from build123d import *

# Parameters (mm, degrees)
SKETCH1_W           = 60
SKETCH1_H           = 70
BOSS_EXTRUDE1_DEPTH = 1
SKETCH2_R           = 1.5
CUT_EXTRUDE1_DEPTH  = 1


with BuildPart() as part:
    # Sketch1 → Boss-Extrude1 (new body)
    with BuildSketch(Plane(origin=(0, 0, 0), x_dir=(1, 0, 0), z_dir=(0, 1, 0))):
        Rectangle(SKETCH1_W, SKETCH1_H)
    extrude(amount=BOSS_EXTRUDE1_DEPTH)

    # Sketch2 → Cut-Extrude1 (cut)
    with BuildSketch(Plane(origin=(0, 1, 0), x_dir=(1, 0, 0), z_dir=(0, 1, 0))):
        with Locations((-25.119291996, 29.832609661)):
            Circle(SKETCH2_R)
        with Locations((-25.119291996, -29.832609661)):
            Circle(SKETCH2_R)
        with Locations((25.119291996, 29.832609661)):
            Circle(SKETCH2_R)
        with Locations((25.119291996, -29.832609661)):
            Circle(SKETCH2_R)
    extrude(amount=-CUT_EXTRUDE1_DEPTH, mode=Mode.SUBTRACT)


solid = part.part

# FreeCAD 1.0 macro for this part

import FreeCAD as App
import Part
import Sketcher
from FreeCAD import Vector

doc = App.newDocument("Part")
body = doc.addObject("PartDesign::Body", "Body")

# Sketch on XZ plane
sketch1 = doc.addObject("Sketcher::SketchObject", "Sketch")
body.addObject(sketch1)
sketch1.AttachmentSupport = (doc.XZ_Plane, [""])
sketch1.MapMode = "FlatFace"
sketch1.addGeometry([
    Part.LineSegment(Vector(-30, -35, 0), Vector(-30, 35, 0)),
    Part.LineSegment(Vector(-30, 35, 0), Vector(30, 35, 0)),
    Part.LineSegment(Vector(30, 35, 0), Vector(30, -35, 0)),
    Part.LineSegment(Vector(30, -35, 0), Vector(-30, -35, 0)),
], False)
sketch1.addConstraint([
    Sketcher.Constraint("Coincident", 0, 2, 1, 1),
    Sketcher.Constraint("Coincident", 1, 2, 2, 1),
    Sketcher.Constraint("Coincident", 2, 2, 3, 1),
    Sketcher.Constraint("Coincident", 3, 2, 0, 1),
    Sketcher.Constraint("Vertical", 0),
    Sketcher.Constraint("Horizontal", 1),
    Sketcher.Constraint("Vertical", 2),
    Sketcher.Constraint("Horizontal", 3),
    Sketcher.Constraint("Symmetric", 0, 2, 2, 2, -1, 1),
    Sketcher.Constraint("DistanceX", 1, 1, 1, 2, 60.0),
    Sketcher.Constraint("DistanceY", 0, 1, 0, 2, 70.0),
])
pad1 = doc.addObject("PartDesign::Pad", "Pad")
body.addObject(pad1)
pad1.Profile = sketch1
pad1.Length = 1
pad1.Reversed = True

# Sketch on XZ plane
sketch2 = doc.addObject("Sketcher::SketchObject", "Sketch001")
body.addObject(sketch2)
sketch2.AttachmentSupport = (doc.XZ_Plane, [""])
sketch2.MapMode = "FlatFace"
sketch2.AttachmentOffset = App.Placement(Vector(0, 0, -1), App.Rotation())
sketch2.addGeometry([
    Part.Circle(Vector(-25.1, -29.8, 0), Vector(0, 0, 1), 1.5),
    Part.Circle(Vector(-25.1, 29.8, 0), Vector(0, 0, 1), 1.5),
    Part.Circle(Vector(25.1, -29.8, 0), Vector(0, 0, 1), 1.5),
    Part.Circle(Vector(25.1, 29.8, 0), Vector(0, 0, 1), 1.5),
], False)
sketch2.addConstraint([
    Sketcher.Constraint("Equal", 0, 1),
    Sketcher.Constraint("Equal", 1, 2),
    Sketcher.Constraint("Equal", 2, 3),
    Sketcher.Constraint("Symmetric", 1, 3, 2, 3, -1, 1),
    Sketcher.Constraint("Symmetric", 0, 3, 3, 3, -1, 1),
    Sketcher.Constraint("Symmetric", 0, 3, 2, 3, -2),
    Sketcher.Constraint("Diameter", 0, 3.0),
    Sketcher.Constraint("DistanceX", 0, 3, -1, 1, 25.119292),
    Sketcher.Constraint("DistanceY", 0, 3, -1, 1, 29.83261),
])
pocket1 = doc.addObject("PartDesign::Pocket", "Pocket")
body.addObject(pocket1)
pocket1.Profile = sketch2
pocket1.Length = 1
pocket1.Reversed = True

doc.recompute()
